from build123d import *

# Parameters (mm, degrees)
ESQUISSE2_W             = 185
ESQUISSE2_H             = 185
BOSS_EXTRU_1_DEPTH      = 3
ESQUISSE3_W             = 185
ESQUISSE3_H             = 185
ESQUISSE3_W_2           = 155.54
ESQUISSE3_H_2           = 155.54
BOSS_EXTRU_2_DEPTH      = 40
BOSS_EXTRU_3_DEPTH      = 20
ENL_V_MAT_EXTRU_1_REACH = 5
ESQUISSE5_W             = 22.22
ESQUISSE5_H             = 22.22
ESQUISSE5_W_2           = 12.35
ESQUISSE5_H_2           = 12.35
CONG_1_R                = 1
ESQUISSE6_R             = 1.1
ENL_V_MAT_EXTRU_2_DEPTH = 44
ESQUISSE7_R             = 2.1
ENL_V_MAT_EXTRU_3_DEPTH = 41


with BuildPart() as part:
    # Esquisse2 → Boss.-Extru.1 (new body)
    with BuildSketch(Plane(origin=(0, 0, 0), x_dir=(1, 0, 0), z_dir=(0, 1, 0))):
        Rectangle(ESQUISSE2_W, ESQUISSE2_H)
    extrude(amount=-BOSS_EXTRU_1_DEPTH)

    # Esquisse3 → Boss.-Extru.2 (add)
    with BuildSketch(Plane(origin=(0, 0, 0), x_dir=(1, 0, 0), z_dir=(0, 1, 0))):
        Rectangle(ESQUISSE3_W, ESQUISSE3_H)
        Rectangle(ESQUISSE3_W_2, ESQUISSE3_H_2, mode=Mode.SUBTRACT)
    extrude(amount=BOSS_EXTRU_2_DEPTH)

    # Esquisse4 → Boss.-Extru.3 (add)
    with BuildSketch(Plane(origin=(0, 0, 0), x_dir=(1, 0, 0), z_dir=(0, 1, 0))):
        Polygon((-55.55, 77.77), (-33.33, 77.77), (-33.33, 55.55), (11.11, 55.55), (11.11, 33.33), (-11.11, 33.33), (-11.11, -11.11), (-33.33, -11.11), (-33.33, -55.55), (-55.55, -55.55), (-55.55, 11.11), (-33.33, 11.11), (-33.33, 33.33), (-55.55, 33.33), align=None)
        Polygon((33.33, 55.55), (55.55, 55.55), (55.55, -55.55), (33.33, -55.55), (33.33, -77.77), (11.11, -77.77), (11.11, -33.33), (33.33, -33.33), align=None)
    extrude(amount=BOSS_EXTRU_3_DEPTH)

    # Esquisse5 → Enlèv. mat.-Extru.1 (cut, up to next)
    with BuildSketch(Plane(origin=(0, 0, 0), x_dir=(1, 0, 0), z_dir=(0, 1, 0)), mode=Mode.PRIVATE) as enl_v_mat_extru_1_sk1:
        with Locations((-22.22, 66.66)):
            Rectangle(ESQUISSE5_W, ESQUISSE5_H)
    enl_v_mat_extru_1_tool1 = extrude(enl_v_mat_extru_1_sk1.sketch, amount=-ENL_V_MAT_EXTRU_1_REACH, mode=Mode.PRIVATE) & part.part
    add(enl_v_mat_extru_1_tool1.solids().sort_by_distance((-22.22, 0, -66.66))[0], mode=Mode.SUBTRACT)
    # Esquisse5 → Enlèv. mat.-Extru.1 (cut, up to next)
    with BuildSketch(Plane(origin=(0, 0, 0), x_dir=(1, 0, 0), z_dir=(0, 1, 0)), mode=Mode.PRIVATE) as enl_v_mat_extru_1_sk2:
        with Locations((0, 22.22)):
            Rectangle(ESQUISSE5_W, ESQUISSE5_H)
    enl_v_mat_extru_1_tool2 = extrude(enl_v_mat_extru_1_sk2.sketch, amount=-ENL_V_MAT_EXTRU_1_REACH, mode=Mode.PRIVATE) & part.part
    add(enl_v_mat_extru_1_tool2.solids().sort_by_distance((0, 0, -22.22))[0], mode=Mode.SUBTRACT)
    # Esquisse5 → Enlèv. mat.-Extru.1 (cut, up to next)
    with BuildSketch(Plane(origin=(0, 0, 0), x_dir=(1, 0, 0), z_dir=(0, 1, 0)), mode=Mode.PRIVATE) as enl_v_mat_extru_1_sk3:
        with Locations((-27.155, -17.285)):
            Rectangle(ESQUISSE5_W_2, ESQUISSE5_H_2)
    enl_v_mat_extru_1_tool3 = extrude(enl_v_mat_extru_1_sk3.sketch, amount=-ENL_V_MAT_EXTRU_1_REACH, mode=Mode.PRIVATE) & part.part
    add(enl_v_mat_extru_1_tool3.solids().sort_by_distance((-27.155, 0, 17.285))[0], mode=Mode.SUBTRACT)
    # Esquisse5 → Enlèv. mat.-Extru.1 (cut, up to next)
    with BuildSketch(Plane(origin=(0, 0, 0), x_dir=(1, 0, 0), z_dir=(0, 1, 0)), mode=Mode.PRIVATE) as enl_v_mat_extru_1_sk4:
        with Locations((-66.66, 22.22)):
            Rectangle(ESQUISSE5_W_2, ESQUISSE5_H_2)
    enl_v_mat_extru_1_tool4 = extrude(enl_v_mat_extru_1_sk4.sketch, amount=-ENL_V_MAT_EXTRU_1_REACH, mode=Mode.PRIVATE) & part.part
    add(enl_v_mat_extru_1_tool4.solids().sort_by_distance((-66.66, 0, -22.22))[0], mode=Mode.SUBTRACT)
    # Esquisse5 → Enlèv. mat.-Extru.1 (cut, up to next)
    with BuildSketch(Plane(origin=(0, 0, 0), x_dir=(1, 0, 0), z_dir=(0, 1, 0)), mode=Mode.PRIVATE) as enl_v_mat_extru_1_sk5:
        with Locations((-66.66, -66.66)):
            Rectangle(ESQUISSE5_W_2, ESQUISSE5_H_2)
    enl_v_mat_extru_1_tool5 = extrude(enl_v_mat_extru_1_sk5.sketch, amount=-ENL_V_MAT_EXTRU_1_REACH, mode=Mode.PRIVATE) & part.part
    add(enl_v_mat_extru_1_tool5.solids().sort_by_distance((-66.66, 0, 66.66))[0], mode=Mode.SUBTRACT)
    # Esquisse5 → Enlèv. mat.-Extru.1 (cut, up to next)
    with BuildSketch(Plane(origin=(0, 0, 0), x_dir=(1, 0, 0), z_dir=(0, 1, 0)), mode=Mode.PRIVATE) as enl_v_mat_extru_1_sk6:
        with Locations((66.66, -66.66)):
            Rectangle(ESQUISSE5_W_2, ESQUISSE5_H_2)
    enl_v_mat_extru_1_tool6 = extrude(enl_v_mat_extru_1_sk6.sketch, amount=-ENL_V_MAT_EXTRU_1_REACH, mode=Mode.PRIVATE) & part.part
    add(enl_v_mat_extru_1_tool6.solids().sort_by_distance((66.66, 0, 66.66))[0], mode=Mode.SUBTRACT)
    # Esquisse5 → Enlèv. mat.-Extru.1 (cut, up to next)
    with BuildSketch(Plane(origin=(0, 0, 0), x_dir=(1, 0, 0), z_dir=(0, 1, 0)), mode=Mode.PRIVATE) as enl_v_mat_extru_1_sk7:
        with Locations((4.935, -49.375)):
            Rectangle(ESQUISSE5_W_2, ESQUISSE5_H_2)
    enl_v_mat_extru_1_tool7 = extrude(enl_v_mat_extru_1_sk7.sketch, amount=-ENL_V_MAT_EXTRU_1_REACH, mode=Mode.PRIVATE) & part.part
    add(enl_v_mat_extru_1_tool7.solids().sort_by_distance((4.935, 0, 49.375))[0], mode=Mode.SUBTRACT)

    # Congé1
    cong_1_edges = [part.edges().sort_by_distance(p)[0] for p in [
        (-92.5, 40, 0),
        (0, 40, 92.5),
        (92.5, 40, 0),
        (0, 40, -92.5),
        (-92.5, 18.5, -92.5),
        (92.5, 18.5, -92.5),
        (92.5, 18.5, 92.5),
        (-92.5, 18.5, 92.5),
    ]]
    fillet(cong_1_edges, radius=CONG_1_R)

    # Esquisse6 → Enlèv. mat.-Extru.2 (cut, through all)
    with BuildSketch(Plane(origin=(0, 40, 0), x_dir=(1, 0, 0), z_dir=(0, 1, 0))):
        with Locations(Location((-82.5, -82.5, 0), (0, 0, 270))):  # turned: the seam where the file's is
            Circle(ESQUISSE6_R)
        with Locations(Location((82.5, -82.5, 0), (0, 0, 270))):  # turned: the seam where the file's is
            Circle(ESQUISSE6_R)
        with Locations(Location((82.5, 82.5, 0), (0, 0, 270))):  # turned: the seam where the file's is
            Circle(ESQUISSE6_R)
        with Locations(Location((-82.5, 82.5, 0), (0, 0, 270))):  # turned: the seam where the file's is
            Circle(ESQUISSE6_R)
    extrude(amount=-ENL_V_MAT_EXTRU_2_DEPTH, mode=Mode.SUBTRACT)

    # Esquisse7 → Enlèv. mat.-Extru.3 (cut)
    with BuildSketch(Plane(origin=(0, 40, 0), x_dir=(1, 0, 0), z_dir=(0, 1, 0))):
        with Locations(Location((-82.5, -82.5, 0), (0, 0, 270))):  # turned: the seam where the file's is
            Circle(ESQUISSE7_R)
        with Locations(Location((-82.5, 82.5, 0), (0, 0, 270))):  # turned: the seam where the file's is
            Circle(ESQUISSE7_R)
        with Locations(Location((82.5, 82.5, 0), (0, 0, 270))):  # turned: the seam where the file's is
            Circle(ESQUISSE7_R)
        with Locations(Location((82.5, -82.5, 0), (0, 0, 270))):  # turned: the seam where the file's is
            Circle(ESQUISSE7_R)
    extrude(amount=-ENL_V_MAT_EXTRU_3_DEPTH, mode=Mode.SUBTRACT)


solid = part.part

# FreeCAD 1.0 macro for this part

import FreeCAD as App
import Part
import Sketcher
from FreeCAD import Vector


def edges_at(feature, points):
    """Names of the edges that pass closest to the given points."""
    edges = feature.Shape.Edges
    near = lambda p: min(range(len(edges)), key=lambda i: edges[i].distToShape(Part.Vertex(*p))[0])
    return sorted({f"Edge{near(p) + 1}" for p in points})


def add_polygon(sketch, points):
    """Adds a closed chain of lines whose ends are joined by coincident constraints."""
    first, n = sketch.GeometryCount, len(points)
    for a, b in zip(points, points[1:] + points[:1]):
        sketch.addGeometry(Part.LineSegment(App.Vector(*a, 0), App.Vector(*b, 0)), False)
    for i in range(n):
        sketch.addConstraint(Sketcher.Constraint("Coincident", first + i, 2, first + (i + 1) % n, 1))

doc = App.newDocument("Part")
body = doc.addObject("PartDesign::Body", "Body")

sketch1 = body.newObject("Sketcher::SketchObject", "Sketch")
sketch1.AttachmentSupport = (doc.getObject("XZ_Plane"), [""])
sketch1.MapMode = "FlatFace"
add_polygon(sketch1, [(-92.5, -92.5), (-92.5, 92.5), (92.5, 92.5), (92.5, -92.5)])
sketch1.addConstraint(Sketcher.Constraint("Vertical", 0))
sketch1.addConstraint(Sketcher.Constraint("Horizontal", 1))
sketch1.addConstraint(Sketcher.Constraint("Vertical", 2))
sketch1.addConstraint(Sketcher.Constraint("Horizontal", 3))
sketch1.addConstraint(Sketcher.Constraint("Symmetric", 0, 2, 2, 2, -1, 1))
sketch1.addConstraint(Sketcher.Constraint("Equal", 3, 0))
sketch1.addConstraint(Sketcher.Constraint("DistanceX", 1, 1, 1, 2, 185.0))
pad1 = body.newObject("PartDesign::Pad", "Pad")
pad1.Profile = sketch1
pad1.Length = 3

sketch2 = body.newObject("Sketcher::SketchObject", "Sketch001")
sketch2.AttachmentSupport = (doc.getObject("XZ_Plane"), [""])
sketch2.MapMode = "FlatFace"
add_polygon(sketch2, [(-92.5, -92.5), (-92.5, 92.5), (92.5, 92.5), (92.5, -92.5)])
add_polygon(sketch2, [(77.77, 77.77), (-77.77, 77.77), (-77.77, -77.77), (77.77, -77.77)])
sketch2.addConstraint(Sketcher.Constraint("Vertical", 0))
sketch2.addConstraint(Sketcher.Constraint("Horizontal", 1))
sketch2.addConstraint(Sketcher.Constraint("Vertical", 2))
sketch2.addConstraint(Sketcher.Constraint("Horizontal", 3))
sketch2.addConstraint(Sketcher.Constraint("Horizontal", 4))
sketch2.addConstraint(Sketcher.Constraint("Vertical", 5))
sketch2.addConstraint(Sketcher.Constraint("Horizontal", 6))
sketch2.addConstraint(Sketcher.Constraint("Vertical", 7))
sketch2.addConstraint(Sketcher.Constraint("Symmetric", 0, 2, 2, 2, -1, 1))
sketch2.addConstraint(Sketcher.Constraint("Symmetric", 4, 2, 6, 2, -1, 1))
sketch2.addConstraint(Sketcher.Constraint("Equal", 3, 0))
sketch2.addConstraint(Sketcher.Constraint("Equal", 6, 5))
sketch2.addConstraint(Sketcher.Constraint("DistanceX", 1, 1, 1, 2, 185.0))
sketch2.addConstraint(Sketcher.Constraint("DistanceX", 4, 2, 4, 1, 155.54))
pad2 = body.newObject("PartDesign::Pad", "Pad001")
pad2.Profile = sketch2
pad2.Length = 40
pad2.Reversed = True

sketch3 = body.newObject("Sketcher::SketchObject", "Sketch002")
sketch3.AttachmentSupport = (doc.getObject("XZ_Plane"), [""])
sketch3.MapMode = "FlatFace"
add_polygon(sketch3, [(-33.33, -77.77), (-55.55, -77.77), (-55.55, -33.33), (-33.33, -33.33), (-33.33, -11.11), (-55.55, -11.11), (-55.55, 55.55), (-33.33, 55.55), (-33.33, 11.11), (-11.11, 11.11), (-11.11, -33.33), (11.11, -33.33), (11.11, -55.55), (-33.33, -55.55)])
add_polygon(sketch3, [(55.55, -55.55), (33.33, -55.55), (33.33, 33.33), (11.11, 33.33), (11.11, 77.77), (33.33, 77.77), (33.33, 55.55), (55.55, 55.55)])
sketch3.addConstraint(Sketcher.Constraint("Horizontal", 0))
sketch3.addConstraint(Sketcher.Constraint("Vertical", 1))
sketch3.addConstraint(Sketcher.Constraint("Horizontal", 2))
sketch3.addConstraint(Sketcher.Constraint("Vertical", 3))
sketch3.addConstraint(Sketcher.Constraint("Horizontal", 4))
sketch3.addConstraint(Sketcher.Constraint("Vertical", 5))
sketch3.addConstraint(Sketcher.Constraint("Horizontal", 6))
sketch3.addConstraint(Sketcher.Constraint("Vertical", 7))
sketch3.addConstraint(Sketcher.Constraint("Horizontal", 8))
sketch3.addConstraint(Sketcher.Constraint("Vertical", 9))
sketch3.addConstraint(Sketcher.Constraint("Horizontal", 10))
sketch3.addConstraint(Sketcher.Constraint("Vertical", 11))
sketch3.addConstraint(Sketcher.Constraint("Horizontal", 12))
sketch3.addConstraint(Sketcher.Constraint("Vertical", 13))
sketch3.addConstraint(Sketcher.Constraint("Horizontal", 14))
sketch3.addConstraint(Sketcher.Constraint("Vertical", 15))
sketch3.addConstraint(Sketcher.Constraint("Horizontal", 16))
sketch3.addConstraint(Sketcher.Constraint("Vertical", 17))
sketch3.addConstraint(Sketcher.Constraint("Horizontal", 18))
sketch3.addConstraint(Sketcher.Constraint("Vertical", 19))
sketch3.addConstraint(Sketcher.Constraint("Horizontal", 20))
sketch3.addConstraint(Sketcher.Constraint("Vertical", 21))
sketch3.addConstraint(Sketcher.Constraint("Symmetric", 6, 2, 14, 2, -1, 1))
sketch3.addConstraint(Sketcher.Constraint("Symmetric", 2, 2, 15, 2, -1, 1))
sketch3.addConstraint(Sketcher.Constraint("Symmetric", 9, 2, 16, 2, -1, 1))
sketch3.addConstraint(Sketcher.Constraint("Symmetric", 13, 2, 18, 2, -1, 1))
sketch3.addConstraint(Sketcher.Constraint("Symmetric", 12, 2, 14, 2, -2))
sketch3.addConstraint(Sketcher.Constraint("Symmetric", 5, 2, 20, 2, -2))
sketch3.addConstraint(Sketcher.Constraint("Vertical", 1, 2, 4, 2))
sketch3.addConstraint(Sketcher.Constraint("Vertical", 11, 2, 16, 2))
sketch3.addConstraint(Sketcher.Constraint("Equal", 6, 8))
sketch3.addConstraint(Sketcher.Constraint("Equal", 8, 10))
sketch3.addConstraint(Sketcher.Constraint("Equal", 12, 1))
sketch3.addConstraint(Sketcher.Constraint("Equal", 20, 3))
sketch3.addConstraint(Sketcher.Constraint("Equal", 1, 7))
sketch3.addConstraint(Sketcher.Constraint("Equal", 7, 9))
sketch3.addConstraint(Sketcher.Constraint("Equal", 3, 11))
sketch3.addConstraint(Sketcher.Constraint("DistanceY", 21, 2, 21, 1, 111.1))
pad3 = body.newObject("PartDesign::Pad", "Pad002")
pad3.Profile = sketch3
pad3.Length = 20
pad3.Reversed = True

sketch4 = body.newObject("Sketcher::SketchObject", "Sketch003")
sketch4.AttachmentSupport = (doc.getObject("XZ_Plane"), [""])
sketch4.MapMode = "FlatFace"
add_polygon(sketch4, [(-33.33, -77.77), (-33.33, -55.55), (-11.11, -55.55), (-11.11, -77.77)])
sketch4.addConstraint(Sketcher.Constraint("Vertical", 0))
sketch4.addConstraint(Sketcher.Constraint("Horizontal", 1))
sketch4.addConstraint(Sketcher.Constraint("Vertical", 2))
sketch4.addConstraint(Sketcher.Constraint("Horizontal", 3))
sketch4.addConstraint(Sketcher.Constraint("Equal", 3, 0))
sketch4.addConstraint(Sketcher.Constraint("DistanceX", 1, 1, 1, 2, 22.22))
sketch4.addConstraint(Sketcher.Constraint("DistanceX", 0, 2, -1, 1, 33.33))
sketch4.addConstraint(Sketcher.Constraint("DistanceY", 0, 2, -1, 1, 55.55))
pocket1 = body.newObject("PartDesign::Pocket", "Pocket")
pocket1.Profile = sketch4
pocket1.Type = "UpToFirst"
pocket1.Reversed = True

sketch5 = body.newObject("Sketcher::SketchObject", "Sketch004")
sketch5.AttachmentSupport = (doc.getObject("XZ_Plane"), [""])
sketch5.MapMode = "FlatFace"
add_polygon(sketch5, [(-11.11, -33.33), (-11.11, -11.11), (11.11, -11.11), (11.11, -33.33)])
sketch5.addConstraint(Sketcher.Constraint("Vertical", 0))
sketch5.addConstraint(Sketcher.Constraint("Horizontal", 1))
sketch5.addConstraint(Sketcher.Constraint("Vertical", 2))
sketch5.addConstraint(Sketcher.Constraint("Horizontal", 3))
sketch5.addConstraint(Sketcher.Constraint("Equal", 3, 0))
sketch5.addConstraint(Sketcher.Constraint("DistanceX", 1, 1, 1, 2, 22.22))
sketch5.addConstraint(Sketcher.Constraint("DistanceX", 0, 2, -1, 1, 11.11))
sketch5.addConstraint(Sketcher.Constraint("DistanceY", 0, 2, -1, 1, 11.11))
pocket2 = body.newObject("PartDesign::Pocket", "Pocket001")
pocket2.Profile = sketch5
pocket2.Type = "UpToFirst"
pocket2.Reversed = True

sketch6 = body.newObject("Sketcher::SketchObject", "Sketch005")
sketch6.AttachmentSupport = (doc.getObject("XZ_Plane"), [""])
sketch6.MapMode = "FlatFace"
add_polygon(sketch6, [(-33.33, 11.11), (-33.33, 23.46), (-20.98, 23.46), (-20.98, 11.11)])
sketch6.addConstraint(Sketcher.Constraint("Vertical", 0))
sketch6.addConstraint(Sketcher.Constraint("Horizontal", 1))
sketch6.addConstraint(Sketcher.Constraint("Vertical", 2))
sketch6.addConstraint(Sketcher.Constraint("Horizontal", 3))
sketch6.addConstraint(Sketcher.Constraint("Equal", 3, 0))
sketch6.addConstraint(Sketcher.Constraint("DistanceX", 1, 1, 1, 2, 12.35))
sketch6.addConstraint(Sketcher.Constraint("DistanceX", 0, 2, -1, 1, 33.33))
sketch6.addConstraint(Sketcher.Constraint("DistanceY", -1, 1, 0, 2, 23.46))
pocket3 = body.newObject("PartDesign::Pocket", "Pocket002")
pocket3.Profile = sketch6
pocket3.Type = "UpToFirst"
pocket3.Reversed = True

sketch7 = body.newObject("Sketcher::SketchObject", "Sketch006")
sketch7.AttachmentSupport = (doc.getObject("XZ_Plane"), [""])
sketch7.MapMode = "FlatFace"
add_polygon(sketch7, [(-72.835, -28.395), (-72.835, -16.045), (-60.485, -16.045), (-60.485, -28.395)])
sketch7.addConstraint(Sketcher.Constraint("Vertical", 0))
sketch7.addConstraint(Sketcher.Constraint("Horizontal", 1))
sketch7.addConstraint(Sketcher.Constraint("Vertical", 2))
sketch7.addConstraint(Sketcher.Constraint("Horizontal", 3))
sketch7.addConstraint(Sketcher.Constraint("Equal", 3, 0))
sketch7.addConstraint(Sketcher.Constraint("DistanceX", 1, 1, 1, 2, 12.35))
sketch7.addConstraint(Sketcher.Constraint("DistanceX", 0, 2, -1, 1, 72.835))
sketch7.addConstraint(Sketcher.Constraint("DistanceY", 0, 2, -1, 1, 16.045))
pocket4 = body.newObject("PartDesign::Pocket", "Pocket003")
pocket4.Profile = sketch7
pocket4.Type = "UpToFirst"
pocket4.Reversed = True

sketch8 = body.newObject("Sketcher::SketchObject", "Sketch007")
sketch8.AttachmentSupport = (doc.getObject("XZ_Plane"), [""])
sketch8.MapMode = "FlatFace"
add_polygon(sketch8, [(-72.835, 60.485), (-72.835, 72.835), (-60.485, 72.835), (-60.485, 60.485)])
sketch8.addConstraint(Sketcher.Constraint("Vertical", 0))
sketch8.addConstraint(Sketcher.Constraint("Horizontal", 1))
sketch8.addConstraint(Sketcher.Constraint("Vertical", 2))
sketch8.addConstraint(Sketcher.Constraint("Horizontal", 3))
sketch8.addConstraint(Sketcher.Constraint("Equal", 3, 0))
sketch8.addConstraint(Sketcher.Constraint("DistanceX", 1, 1, 1, 2, 12.35))
sketch8.addConstraint(Sketcher.Constraint("DistanceX", 0, 2, -1, 1, 72.835))
sketch8.addConstraint(Sketcher.Constraint("DistanceY", -1, 1, 0, 2, 72.835))
pocket5 = body.newObject("PartDesign::Pocket", "Pocket004")
pocket5.Profile = sketch8
pocket5.Type = "UpToFirst"
pocket5.Reversed = True

sketch9 = body.newObject("Sketcher::SketchObject", "Sketch008")
sketch9.AttachmentSupport = (doc.getObject("XZ_Plane"), [""])
sketch9.MapMode = "FlatFace"
add_polygon(sketch9, [(60.485, 60.485), (60.485, 72.835), (72.835, 72.835), (72.835, 60.485)])
sketch9.addConstraint(Sketcher.Constraint("Vertical", 0))
sketch9.addConstraint(Sketcher.Constraint("Horizontal", 1))
sketch9.addConstraint(Sketcher.Constraint("Vertical", 2))
sketch9.addConstraint(Sketcher.Constraint("Horizontal", 3))
sketch9.addConstraint(Sketcher.Constraint("Equal", 3, 0))
sketch9.addConstraint(Sketcher.Constraint("DistanceX", 1, 1, 1, 2, 12.35))
sketch9.addConstraint(Sketcher.Constraint("DistanceX", -1, 1, 0, 2, 60.485))
sketch9.addConstraint(Sketcher.Constraint("DistanceY", -1, 1, 0, 2, 72.835))
pocket6 = body.newObject("PartDesign::Pocket", "Pocket005")
pocket6.Profile = sketch9
pocket6.Type = "UpToFirst"
pocket6.Reversed = True

sketch10 = body.newObject("Sketcher::SketchObject", "Sketch009")
sketch10.AttachmentSupport = (doc.getObject("XZ_Plane"), [""])
sketch10.MapMode = "FlatFace"
add_polygon(sketch10, [(-1.24, 43.2), (-1.24, 55.55), (11.11, 55.55), (11.11, 43.2)])
sketch10.addConstraint(Sketcher.Constraint("Vertical", 0))
sketch10.addConstraint(Sketcher.Constraint("Horizontal", 1))
sketch10.addConstraint(Sketcher.Constraint("Vertical", 2))
sketch10.addConstraint(Sketcher.Constraint("Horizontal", 3))
sketch10.addConstraint(Sketcher.Constraint("Equal", 3, 0))
sketch10.addConstraint(Sketcher.Constraint("DistanceX", 1, 1, 1, 2, 12.35))
sketch10.addConstraint(Sketcher.Constraint("DistanceY", -1, 1, 2, 2, 43.2))
sketch10.addConstraint(Sketcher.Constraint("DistanceX", 0, 2, -1, 1, 1.24))
pocket7 = body.newObject("PartDesign::Pocket", "Pocket006")
pocket7.Profile = sketch10
pocket7.Type = "UpToFirst"
pocket7.Reversed = True
doc.recompute()

fillet = body.newObject("PartDesign::Fillet", "Fillet")
fillet.Base = (pocket7, edges_at(pocket7, [
    (-92.5, 40, 0),
    (0, 40, 92.5),
    (92.5, 40, 0),
    (0, 40, -92.5),
    (-92.5, 18.5, -92.5),
    (92.5, 18.5, -92.5),
    (92.5, 18.5, 92.5),
    (-92.5, 18.5, 92.5),
]))
fillet.Radius = 1

sketch11 = body.newObject("Sketcher::SketchObject", "Sketch010")
sketch11.AttachmentSupport = (doc.getObject("XZ_Plane"), [""])
sketch11.MapMode = "FlatFace"
sketch11.AttachmentOffset = App.Placement(Vector(0, 0, -40), App.Rotation())
sketch11.addGeometry(Part.Circle(Vector(-82.5, 82.5, 0), Vector(0, 0, 1), 1.1), False)
sketch11.addGeometry(Part.Circle(Vector(82.5, 82.5, 0), Vector(0, 0, 1), 1.1), False)
sketch11.addGeometry(Part.Circle(Vector(82.5, -82.5, 0), Vector(0, 0, 1), 1.1), False)
sketch11.addGeometry(Part.Circle(Vector(-82.5, -82.5, 0), Vector(0, 0, 1), 1.1), False)
sketch11.addConstraint(Sketcher.Constraint("Equal", 0, 1))
sketch11.addConstraint(Sketcher.Constraint("Equal", 1, 2))
sketch11.addConstraint(Sketcher.Constraint("Equal", 2, 3))
sketch11.addConstraint(Sketcher.Constraint("Symmetric", 0, 3, 2, 3, -1, 1))
sketch11.addConstraint(Sketcher.Constraint("Symmetric", 1, 3, 3, 3, -1, 1))
sketch11.addConstraint(Sketcher.Constraint("Symmetric", 0, 3, 1, 3, -2))
sketch11.addConstraint(Sketcher.Constraint("Diameter", 0, 2.2))
sketch11.addConstraint(Sketcher.Constraint("DistanceX", 0, 3, 1, 3, 165.0))
sketch11.addConstraint(Sketcher.Constraint("DistanceY", 2, 3, 1, 3, 165.0))
pocket8 = body.newObject("PartDesign::Pocket", "Pocket007")
pocket8.Profile = sketch11
pocket8.Type = "ThroughAll"
pocket8.Reversed = True

sketch12 = body.newObject("Sketcher::SketchObject", "Sketch011")
sketch12.AttachmentSupport = (doc.getObject("XZ_Plane"), [""])
sketch12.MapMode = "FlatFace"
sketch12.AttachmentOffset = App.Placement(Vector(0, 0, -40), App.Rotation())
sketch12.addGeometry(Part.Circle(Vector(-82.5, 82.5, 0), Vector(0, 0, 1), 2.1), False)
sketch12.addGeometry(Part.Circle(Vector(-82.5, -82.5, 0), Vector(0, 0, 1), 2.1), False)
sketch12.addGeometry(Part.Circle(Vector(82.5, -82.5, 0), Vector(0, 0, 1), 2.1), False)
sketch12.addGeometry(Part.Circle(Vector(82.5, 82.5, 0), Vector(0, 0, 1), 2.1), False)
sketch12.addConstraint(Sketcher.Constraint("Equal", 0, 1))
sketch12.addConstraint(Sketcher.Constraint("Equal", 1, 2))
sketch12.addConstraint(Sketcher.Constraint("Equal", 2, 3))
sketch12.addConstraint(Sketcher.Constraint("Symmetric", 0, 3, 2, 3, -1, 1))
sketch12.addConstraint(Sketcher.Constraint("Symmetric", 1, 3, 3, 3, -1, 1))
sketch12.addConstraint(Sketcher.Constraint("Symmetric", 1, 3, 2, 3, -2))
sketch12.addConstraint(Sketcher.Constraint("Diameter", 0, 4.2))
sketch12.addConstraint(Sketcher.Constraint("DistanceY", 1, 3, 0, 3, 165.0))
sketch12.addConstraint(Sketcher.Constraint("DistanceX", 1, 3, 2, 3, 165.0))
pocket9 = body.newObject("PartDesign::Pocket", "Pocket008")
pocket9.Profile = sketch12
pocket9.Length = 41
pocket9.Reversed = True

doc.recompute()
